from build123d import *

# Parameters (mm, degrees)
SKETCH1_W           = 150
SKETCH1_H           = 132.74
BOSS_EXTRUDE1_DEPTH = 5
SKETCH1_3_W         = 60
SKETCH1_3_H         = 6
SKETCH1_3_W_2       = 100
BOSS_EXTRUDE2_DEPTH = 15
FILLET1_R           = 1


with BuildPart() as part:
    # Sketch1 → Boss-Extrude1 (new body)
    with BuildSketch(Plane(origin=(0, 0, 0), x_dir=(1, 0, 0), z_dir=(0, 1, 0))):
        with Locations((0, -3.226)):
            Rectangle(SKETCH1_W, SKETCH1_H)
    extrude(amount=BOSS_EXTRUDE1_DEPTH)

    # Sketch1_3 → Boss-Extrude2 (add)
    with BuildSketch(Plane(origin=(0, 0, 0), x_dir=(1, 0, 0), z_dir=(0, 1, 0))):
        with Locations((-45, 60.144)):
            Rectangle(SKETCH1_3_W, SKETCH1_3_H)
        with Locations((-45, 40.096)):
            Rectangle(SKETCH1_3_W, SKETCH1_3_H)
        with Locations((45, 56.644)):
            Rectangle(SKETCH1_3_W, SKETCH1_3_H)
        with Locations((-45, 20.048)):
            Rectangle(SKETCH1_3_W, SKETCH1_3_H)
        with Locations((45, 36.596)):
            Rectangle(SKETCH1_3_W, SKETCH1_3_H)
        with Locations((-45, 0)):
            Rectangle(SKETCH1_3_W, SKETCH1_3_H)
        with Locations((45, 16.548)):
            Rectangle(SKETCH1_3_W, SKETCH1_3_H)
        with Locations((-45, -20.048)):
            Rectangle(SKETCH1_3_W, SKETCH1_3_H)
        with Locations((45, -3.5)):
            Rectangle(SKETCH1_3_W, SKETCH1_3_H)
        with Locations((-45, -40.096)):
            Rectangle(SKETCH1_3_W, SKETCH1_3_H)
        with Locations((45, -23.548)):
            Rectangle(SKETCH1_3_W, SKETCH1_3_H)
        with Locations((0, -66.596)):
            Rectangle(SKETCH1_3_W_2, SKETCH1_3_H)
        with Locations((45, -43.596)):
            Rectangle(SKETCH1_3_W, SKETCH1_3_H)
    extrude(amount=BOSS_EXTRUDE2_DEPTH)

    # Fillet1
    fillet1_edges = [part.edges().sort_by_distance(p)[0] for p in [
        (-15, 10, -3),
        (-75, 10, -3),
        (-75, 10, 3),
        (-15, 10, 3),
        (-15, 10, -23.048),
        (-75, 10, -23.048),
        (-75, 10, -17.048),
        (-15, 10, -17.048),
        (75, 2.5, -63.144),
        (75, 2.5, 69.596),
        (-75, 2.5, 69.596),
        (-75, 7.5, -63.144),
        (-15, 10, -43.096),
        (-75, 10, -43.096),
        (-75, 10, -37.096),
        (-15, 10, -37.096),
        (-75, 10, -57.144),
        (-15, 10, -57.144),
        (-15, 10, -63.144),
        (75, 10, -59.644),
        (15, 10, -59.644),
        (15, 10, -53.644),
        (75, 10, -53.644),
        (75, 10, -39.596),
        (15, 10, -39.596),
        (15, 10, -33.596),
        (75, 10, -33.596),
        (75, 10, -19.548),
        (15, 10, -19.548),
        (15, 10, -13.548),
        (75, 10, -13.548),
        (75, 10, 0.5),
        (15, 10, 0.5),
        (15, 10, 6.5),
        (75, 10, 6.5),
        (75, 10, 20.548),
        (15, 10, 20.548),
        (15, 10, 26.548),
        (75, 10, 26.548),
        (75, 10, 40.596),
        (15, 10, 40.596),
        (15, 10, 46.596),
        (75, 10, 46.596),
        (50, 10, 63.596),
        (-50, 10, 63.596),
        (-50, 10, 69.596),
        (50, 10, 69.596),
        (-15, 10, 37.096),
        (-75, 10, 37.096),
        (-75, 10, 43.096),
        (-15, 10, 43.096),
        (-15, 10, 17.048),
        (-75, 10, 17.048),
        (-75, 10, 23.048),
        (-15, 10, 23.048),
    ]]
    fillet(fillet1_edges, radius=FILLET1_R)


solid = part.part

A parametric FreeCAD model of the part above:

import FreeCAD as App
import Part
import Sketcher


def edges_at(feature, points):
    """Names of the edges that pass closest to the given points."""
    edges = feature.Shape.Edges
    near = lambda p: min(range(len(edges)), key=lambda i: edges[i].distToShape(Part.Vertex(*p))[0])
    return sorted({f"Edge{near(p) + 1}" for p in points})

doc = App.newDocument("Part")
params = doc.addObject("Spreadsheet::Sheet", "Params")
for row, (alias, value) in enumerate([
    ("sketch1_width", "150 mm"),
    ("sketch1_height", "132.74 mm"),
    ("pad1_length", "5 mm"),
    ("sketch2_width", "60 mm"),
    ("sketch2_width2", "100 mm"),
    ("sketch2_height", "6 mm"),
    ("pad2_length", "15 mm"),
    ("fillet_radius", "1 mm"),
], start=1):
    params.set(f"A{row}", alias)
    params.set(f"B{row}", "=" + value)
    params.setAlias(f"B{row}", alias)

body = doc.addObject("PartDesign::Body", "Body")

# Sketch on XZ plane
sketch1 = doc.addObject("Sketcher::SketchObject", "Sketch")
body.addObject(sketch1)
sketch1.AttachmentSupport = (doc.XZ_Plane, [""])
sketch1.MapMode = "FlatFace"
sketch1.addGeometry(Part.LineSegment(App.Vector(-75, -63, 0), App.Vector(-75, 70, 0)), False)
sketch1.addGeometry(Part.LineSegment(App.Vector(-75, 70, 0), App.Vector(75, 70, 0)), False)
sketch1.addGeometry(Part.LineSegment(App.Vector(75, 70, 0), App.Vector(75, -63, 0)), False)
sketch1.addGeometry(Part.LineSegment(App.Vector(75, -63, 0), App.Vector(-75, -63, 0)), False)
sketch1.addConstraint(Sketcher.Constraint("Coincident", 0, 2, 1, 1))
sketch1.addConstraint(Sketcher.Constraint("Coincident", 1, 2, 2, 1))
sketch1.addConstraint(Sketcher.Constraint("Coincident", 2, 2, 3, 1))
sketch1.addConstraint(Sketcher.Constraint("Coincident", 3, 2, 0, 1))
sketch1.addConstraint(Sketcher.Constraint("Vertical", 0))
sketch1.addConstraint(Sketcher.Constraint("Horizontal", 1))
sketch1.addConstraint(Sketcher.Constraint("Vertical", 2))
sketch1.addConstraint(Sketcher.Constraint("Horizontal", 3))
sketch1.addConstraint(Sketcher.Constraint("DistanceX", 1, 1, 1, 2, 150.0))
sketch1.addConstraint(Sketcher.Constraint("DistanceX", 0, 2, -1, 1, 75.0))
sketch1.addConstraint(Sketcher.Constraint("DistanceY", 0, 1, 0, 2, 132.74))
sketch1.addConstraint(Sketcher.Constraint("DistanceY", -1, 1, 0, 2, 69.596))
sketch1.setExpression("Constraints[8]", "Params.sketch1_width")
sketch1.setExpression("Constraints[10]", "Params.sketch1_height")
pad1 = doc.addObject("PartDesign::Pad", "Pad")
body.addObject(pad1)
pad1.Profile = sketch1
pad1.setExpression("Length", "Params.pad1_length")
pad1.Reversed = True

# Sketch on XZ plane
sketch2 = doc.addObject("Sketcher::SketchObject", "Sketch001")
body.addObject(sketch2)
sketch2.AttachmentSupport = (doc.XZ_Plane, [""])
sketch2.MapMode = "FlatFace"
sketch2.addGeometry(Part.LineSegment(App.Vector(-75, -63, 0), App.Vector(-75, -57, 0)), False)
sketch2.addGeometry(Part.LineSegment(App.Vector(-75, -57, 0), App.Vector(-15, -57, 0)), False)
sketch2.addGeometry(Part.LineSegment(App.Vector(-15, -57, 0), App.Vector(-15, -63, 0)), False)
sketch2.addGeometry(Part.LineSegment(App.Vector(-15, -63, 0), App.Vector(-75, -63, 0)), False)
sketch2.addGeometry(Part.LineSegment(App.Vector(-75, -43, 0), App.Vector(-75, -37, 0)), False)
sketch2.addGeometry(Part.LineSegment(App.Vector(-75, -37, 0), App.Vector(-15, -37, 0)), False)
sketch2.addGeometry(Part.LineSegment(App.Vector(-15, -37, 0), App.Vector(-15, -43, 0)), False)
sketch2.addGeometry(Part.LineSegment(App.Vector(-15, -43, 0), App.Vector(-75, -43, 0)), False)
sketch2.addGeometry(Part.LineSegment(App.Vector(15, -60, 0), App.Vector(15, -54, 0)), False)
sketch2.addGeometry(Part.LineSegment(App.Vector(15, -54, 0), App.Vector(75, -54, 0)), False)
sketch2.addGeometry(Part.LineSegment(App.Vector(75, -54, 0), App.Vector(75, -60, 0)), False)
sketch2.addGeometry(Part.LineSegment(App.Vector(75, -60, 0), App.Vector(15, -60, 0)), False)
sketch2.addGeometry(Part.LineSegment(App.Vector(-75, -23, 0), App.Vector(-75, -17, 0)), False)
sketch2.addGeometry(Part.LineSegment(App.Vector(-75, -17, 0), App.Vector(-15, -17, 0)), False)
sketch2.addGeometry(Part.LineSegment(App.Vector(-15, -17, 0), App.Vector(-15, -23, 0)), False)
sketch2.addGeometry(Part.LineSegment(App.Vector(-15, -23, 0), App.Vector(-75, -23, 0)), False)
sketch2.addGeometry(Part.LineSegment(App.Vector(15, -40, 0), App.Vector(15, -34, 0)), False)
sketch2.addGeometry(Part.LineSegment(App.Vector(15, -34, 0), App.Vector(75, -34, 0)), False)
sketch2.addGeometry(Part.LineSegment(App.Vector(75, -34, 0), App.Vector(75, -40, 0)), False)
sketch2.addGeometry(Part.LineSegment(App.Vector(75, -40, 0), App.Vector(15, -40, 0)), False)
sketch2.addGeometry(Part.LineSegment(App.Vector(-75, -3, 0), App.Vector(-75, 3, 0)), False)
sketch2.addGeometry(Part.LineSegment(App.Vector(-75, 3, 0), App.Vector(-15, 3, 0)), False)
sketch2.addGeometry(Part.LineSegment(App.Vector(-15, 3, 0), App.Vector(-15, -3, 0)), False)
sketch2.addGeometry(Part.LineSegment(App.Vector(-15, -3, 0), App.Vector(-75, -3, 0)), False)
sketch2.addGeometry(Part.LineSegment(App.Vector(15, -20, 0), App.Vector(15, -14, 0)), False)
sketch2.addGeometry(Part.LineSegment(App.Vector(15, -14, 0), App.Vector(75, -14, 0)), False)
sketch2.addGeometry(Part.LineSegment(App.Vector(75, -14, 0), App.Vector(75, -20, 0)), False)
sketch2.addGeometry(Part.LineSegment(App.Vector(75, -20, 0), App.Vector(15, -20, 0)), False)
sketch2.addGeometry(Part.LineSegment(App.Vector(-75, 17, 0), App.Vector(-75, 23, 0)), False)
sketch2.addGeometry(Part.LineSegment(App.Vector(-75, 23, 0), App.Vector(-15, 23, 0)), False)
sketch2.addGeometry(Part.LineSegment(App.Vector(-15, 23, 0), App.Vector(-15, 17, 0)), False)
sketch2.addGeometry(Part.LineSegment(App.Vector(-15, 17, 0), App.Vector(-75, 17, 0)), False)
sketch2.addGeometry(Part.LineSegment(App.Vector(15, 0, 0), App.Vector(15, 6, 0)), False)
sketch2.addGeometry(Part.LineSegment(App.Vector(15, 6, 0), App.Vector(75, 6, 0)), False)
sketch2.addGeometry(Part.LineSegment(App.Vector(75, 6, 0), App.Vector(75, 0, 0)), False)
sketch2.addGeometry(Part.LineSegment(App.Vector(75, 0, 0), App.Vector(15, 0, 0)), False)
sketch2.addGeometry(Part.LineSegment(App.Vector(-75, 37, 0), App.Vector(-75, 43, 0)), False)
sketch2.addGeometry(Part.LineSegment(App.Vector(-75, 43, 0), App.Vector(-15, 43, 0)), False)
sketch2.addGeometry(Part.LineSegment(App.Vector(-15, 43, 0), App.Vector(-15, 37, 0)), False)
sketch2.addGeometry(Part.LineSegment(App.Vector(-15, 37, 0), App.Vector(-75, 37, 0)), False)
sketch2.addGeometry(Part.LineSegment(App.Vector(15, 21, 0), App.Vector(15, 27, 0)), False)
sketch2.addGeometry(Part.LineSegment(App.Vector(15, 27, 0), App.Vector(75, 27, 0)), False)
sketch2.addGeometry(Part.LineSegment(App.Vector(75, 27, 0), App.Vector(75, 21, 0)), False)
sketch2.addGeometry(Part.LineSegment(App.Vector(75, 21, 0), App.Vector(15, 21, 0)), False)
sketch2.addGeometry(Part.LineSegment(App.Vector(-50, 64, 0), App.Vector(-50, 70, 0)), False)
sketch2.addGeometry(Part.LineSegment(App.Vector(-50, 70, 0), App.Vector(50, 70, 0)), False)
sketch2.addGeometry(Part.LineSegment(App.Vector(50, 70, 0), App.Vector(50, 64, 0)), False)
sketch2.addGeometry(Part.LineSegment(App.Vector(50, 64, 0), App.Vector(-50, 64, 0)), False)
sketch2.addGeometry(Part.LineSegment(App.Vector(15, 41, 0), App.Vector(15, 47, 0)), False)
sketch2.addGeometry(Part.LineSegment(App.Vector(15, 47, 0), App.Vector(75, 47, 0)), False)
sketch2.addGeometry(Part.LineSegment(App.Vector(75, 47, 0), App.Vector(75, 41, 0)), False)
sketch2.addGeometry(Part.LineSegment(App.Vector(75, 41, 0), App.Vector(15, 41, 0)), False)
sketch2.addConstraint(Sketcher.Constraint("Coincident", 0, 2, 1, 1))
sketch2.addConstraint(Sketcher.Constraint("Coincident", 1, 2, 2, 1))
sketch2.addConstraint(Sketcher.Constraint("Coincident", 2, 2, 3, 1))
sketch2.addConstraint(Sketcher.Constraint("Coincident", 3, 2, 0, 1))
sketch2.addConstraint(Sketcher.Constraint("Coincident", 4, 2, 5, 1))
sketch2.addConstraint(Sketcher.Constraint("Coincident", 5, 2, 6, 1))
sketch2.addConstraint(Sketcher.Constraint("Coincident", 6, 2, 7, 1))
sketch2.addConstraint(Sketcher.Constraint("Coincident", 7, 2, 4, 1))
sketch2.addConstraint(Sketcher.Constraint("Coincident", 8, 2, 9, 1))
sketch2.addConstraint(Sketcher.Constraint("Coincident", 9, 2, 10, 1))
sketch2.addConstraint(Sketcher.Constraint("Coincident", 10, 2, 11, 1))
sketch2.addConstraint(Sketcher.Constraint("Coincident", 11, 2, 8, 1))
sketch2.addConstraint(Sketcher.Constraint("Coincident", 12, 2, 13, 1))
sketch2.addConstraint(Sketcher.Constraint("Coincident", 13, 2, 14, 1))
sketch2.addConstraint(Sketcher.Constraint("Coincident", 14, 2, 15, 1))
sketch2.addConstraint(Sketcher.Constraint("Coincident", 15, 2, 12, 1))
sketch2.addConstraint(Sketcher.Constraint("Coincident", 16, 2, 17, 1))
sketch2.addConstraint(Sketcher.Constraint("Coincident", 17, 2, 18, 1))
sketch2.addConstraint(Sketcher.Constraint("Coincident", 18, 2, 19, 1))
sketch2.addConstraint(Sketcher.Constraint("Coincident", 19, 2, 16, 1))
sketch2.addConstraint(Sketcher.Constraint("Coincident", 20, 2, 21, 1))
sketch2.addConstraint(Sketcher.Constraint("Coincident", 21, 2, 22, 1))
sketch2.addConstraint(Sketcher.Constraint("Coincident", 22, 2, 23, 1))
sketch2.addConstraint(Sketcher.Constraint("Coincident", 23, 2, 20, 1))
sketch2.addConstraint(Sketcher.Constraint("Coincident", 24, 2, 25, 1))
sketch2.addConstraint(Sketcher.Constraint("Coincident", 25, 2, 26, 1))
sketch2.addConstraint(Sketcher.Constraint("Coincident", 26, 2, 27, 1))
sketch2.addConstraint(Sketcher.Constraint("Coincident", 27, 2, 24, 1))
sketch2.addConstraint(Sketcher.Constraint("Coincident", 28, 2, 29, 1))
sketch2.addConstraint(Sketcher.Constraint("Coincident", 29, 2, 30, 1))
sketch2.addConstraint(Sketcher.Constraint("Coincident", 30, 2, 31, 1))
sketch2.addConstraint(Sketcher.Constraint("Coincident", 31, 2, 28, 1))
sketch2.addConstraint(Sketcher.Constraint("Coincident", 32, 2, 33, 1))
sketch2.addConstraint(Sketcher.Constraint("Coincident", 33, 2, 34, 1))
sketch2.addConstraint(Sketcher.Constraint("Coincident", 34, 2, 35, 1))
sketch2.addConstraint(Sketcher.Constraint("Coincident", 35, 2, 32, 1))
sketch2.addConstraint(Sketcher.Constraint("Coincident", 36, 2, 37, 1))
sketch2.addConstraint(Sketcher.Constraint("Coincident", 37, 2, 38, 1))
sketch2.addConstraint(Sketcher.Constraint("Coincident", 38, 2, 39, 1))
sketch2.addConstraint(Sketcher.Constraint("Coincident", 39, 2, 36, 1))
sketch2.addConstraint(Sketcher.Constraint("Coincident", 40, 2, 41, 1))
sketch2.addConstraint(Sketcher.Constraint("Coincident", 41, 2, 42, 1))
sketch2.addConstraint(Sketcher.Constraint("Coincident", 42, 2, 43, 1))
sketch2.addConstraint(Sketcher.Constraint("Coincident", 43, 2, 40, 1))
sketch2.addConstraint(Sketcher.Constraint("Coincident", 44, 2, 45, 1))
sketch2.addConstraint(Sketcher.Constraint("Coincident", 45, 2, 46, 1))
sketch2.addConstraint(Sketcher.Constraint("Coincident", 46, 2, 47, 1))
sketch2.addConstraint(Sketcher.Constraint("Coincident", 47, 2, 44, 1))
sketch2.addConstraint(Sketcher.Constraint("Coincident", 48, 2, 49, 1))
sketch2.addConstraint(Sketcher.Constraint("Coincident", 49, 2, 50, 1))
sketch2.addConstraint(Sketcher.Constraint("Coincident", 50, 2, 51, 1))
sketch2.addConstraint(Sketcher.Constraint("Coincident", 51, 2, 48, 1))
sketch2.addConstraint(Sketcher.Constraint("Vertical", 0))
sketch2.addConstraint(Sketcher.Constraint("Horizontal", 1))
sketch2.addConstraint(Sketcher.Constraint("Vertical", 2))
sketch2.addConstraint(Sketcher.Constraint("Horizontal", 3))
sketch2.addConstraint(Sketcher.Constraint("Vertical", 4))
sketch2.addConstraint(Sketcher.Constraint("Horizontal", 5))
sketch2.addConstraint(Sketcher.Constraint("Vertical", 6))
sketch2.addConstraint(Sketcher.Constraint("Horizontal", 7))
sketch2.addConstraint(Sketcher.Constraint("Vertical", 8))
sketch2.addConstraint(Sketcher.Constraint("Horizontal", 9))
sketch2.addConstraint(Sketcher.Constraint("Vertical", 10))
sketch2.addConstraint(Sketcher.Constraint("Horizontal", 11))
sketch2.addConstraint(Sketcher.Constraint("Vertical", 12))
sketch2.addConstraint(Sketcher.Constraint("Horizontal", 13))
sketch2.addConstraint(Sketcher.Constraint("Vertical", 14))
sketch2.addConstraint(Sketcher.Constraint("Horizontal", 15))
sketch2.addConstraint(Sketcher.Constraint("Vertical", 16))
sketch2.addConstraint(Sketcher.Constraint("Horizontal", 17))
sketch2.addConstraint(Sketcher.Constraint("Vertical", 18))
sketch2.addConstraint(Sketcher.Constraint("Horizontal", 19))
sketch2.addConstraint(Sketcher.Constraint("Vertical", 20))
sketch2.addConstraint(Sketcher.Constraint("Horizontal", 21))
sketch2.addConstraint(Sketcher.Constraint("Vertical", 22))
sketch2.addConstraint(Sketcher.Constraint("Horizontal", 23))
sketch2.addConstraint(Sketcher.Constraint("Vertical", 24))
sketch2.addConstraint(Sketcher.Constraint("Horizontal", 25))
sketch2.addConstraint(Sketcher.Constraint("Vertical", 26))
sketch2.addConstraint(Sketcher.Constraint("Horizontal", 27))
sketch2.addConstraint(Sketcher.Constraint("Vertical", 28))
sketch2.addConstraint(Sketcher.Constraint("Horizontal", 29))
sketch2.addConstraint(Sketcher.Constraint("Vertical", 30))
sketch2.addConstraint(Sketcher.Constraint("Horizontal", 31))
sketch2.addConstraint(Sketcher.Constraint("Vertical", 32))
sketch2.addConstraint(Sketcher.Constraint("Horizontal", 33))
sketch2.addConstraint(Sketcher.Constraint("Vertical", 34))
sketch2.addConstraint(Sketcher.Constraint("Horizontal", 35))
sketch2.addConstraint(Sketcher.Constraint("Vertical", 36))
sketch2.addConstraint(Sketcher.Constraint("Horizontal", 37))
sketch2.addConstraint(Sketcher.Constraint("Vertical", 38))
sketch2.addConstraint(Sketcher.Constraint("Horizontal", 39))
sketch2.addConstraint(Sketcher.Constraint("Vertical", 40))
sketch2.addConstraint(Sketcher.Constraint("Horizontal", 41))
sketch2.addConstraint(Sketcher.Constraint("Vertical", 42))
sketch2.addConstraint(Sketcher.Constraint("Horizontal", 43))
sketch2.addConstraint(Sketcher.Constraint("Vertical", 44))
sketch2.addConstraint(Sketcher.Constraint("Horizontal", 45))
sketch2.addConstraint(Sketcher.Constraint("Vertical", 46))
sketch2.addConstraint(Sketcher.Constraint("Horizontal", 47))
sketch2.addConstraint(Sketcher.Constraint("Vertical", 48))
sketch2.addConstraint(Sketcher.Constraint("Horizontal", 49))
sketch2.addConstraint(Sketcher.Constraint("Vertical", 50))
sketch2.addConstraint(Sketcher.Constraint("Horizontal", 51))
sketch2.addConstraint(Sketcher.Constraint("Symmetric", 15, 2, 28, 2, -1))
sketch2.addConstraint(Sketcher.Constraint("Symmetric", 13, 2, 30, 2, -1))
sketch2.addConstraint(Sketcher.Constraint("Symmetric", 7, 2, 36, 2, -1))
sketch2.addConstraint(Sketcher.Constraint("Symmetric", 5, 2, 38, 2, -1))
sketch2.addConstraint(Sketcher.Constraint("Vertical", 3, 2, 4, 2))
sketch2.addConstraint(Sketcher.Constraint("Vertical", 2, 2, 5, 2))
sketch2.addConstraint(Sketcher.Constraint("Vertical", 7, 2, 12, 2))
sketch2.addConstraint(Sketcher.Constraint("Vertical", 6, 2, 13, 2))
sketch2.addConstraint(Sketcher.Constraint("Vertical", 11, 2, 16, 2))
sketch2.addConstraint(Sketcher.Constraint("Vertical", 10, 2, 17, 2))
sketch2.addConstraint(Sketcher.Constraint("Vertical", 15, 2, 20, 2))
sketch2.addConstraint(Sketcher.Constraint("Vertical", 14, 2, 21, 2))
sketch2.addConstraint(Sketcher.Constraint("Vertical", 19, 2, 24, 2))
sketch2.addConstraint(Sketcher.Constraint("Vertical", 18, 2, 25, 2))
sketch2.addConstraint(Sketcher.Constraint("Vertical", 27, 2, 32, 2))
sketch2.addConstraint(Sketcher.Constraint("Vertical", 26, 2, 33, 2))
sketch2.addConstraint(Sketcher.Constraint("Vertical", 35, 2, 40, 2))
sketch2.addConstraint(Sketcher.Constraint("Vertical", 34, 2, 41, 2))
sketch2.addConstraint(Sketcher.Constraint("Vertical", 43, 2, 48, 2))
sketch2.addConstraint(Sketcher.Constraint("Vertical", 42, 2, 49, 2))
sketch2.addConstraint(Sketcher.Constraint("Equal", 7, 9))
sketch2.addConstraint(Sketcher.Constraint("Equal", 2, 4))
sketch2.addConstraint(Sketcher.Constraint("Equal", 6, 8))
sketch2.addConstraint(Sketcher.Constraint("Equal", 10, 12))
sketch2.addConstraint(Sketcher.Constraint("Equal", 14, 16))
sketch2.addConstraint(Sketcher.Constraint("Equal", 18, 20))
sketch2.addConstraint(Sketcher.Constraint("Equal", 22, 24))
sketch2.addConstraint(Sketcher.Constraint("Equal", 30, 32))
sketch2.addConstraint(Sketcher.Constraint("Equal", 38, 40))
sketch2.addConstraint(Sketcher.Constraint("Equal", 42, 44))
sketch2.addConstraint(Sketcher.Constraint("Equal", 46, 48))
sketch2.addConstraint(Sketcher.Constraint("DistanceX", 1, 1, 1, 2, 60.0))
sketch2.addConstraint(Sketcher.Constraint("DistanceX", 45, 1, 45, 2, 100.0))
sketch2.addConstraint(Sketcher.Constraint("DistanceY", 0, 1, 0, 2, 6.0))
sketch2.addConstraint(Sketcher.Constraint("DistanceX", 0, 2, -1, 1, 75.0))
sketch2.addConstraint(Sketcher.Constraint("DistanceX", -1, 1, 8, 2, 15.0))
sketch2.addConstraint(Sketcher.Constraint("DistanceY", -1, 1, 20, 2, 3.0))
sketch2.addConstraint(Sketcher.Constraint("DistanceX", 44, 2, -1, 1, 50.0))
sketch2.addConstraint(Sketcher.Constraint("DistanceY", 49, 2, 46, 2, 17.0))
sketch2.addConstraint(Sketcher.Constraint("DistanceY", -1, 1, 32, 2, 6.5))
sketch2.addConstraint(Sketcher.Constraint("DistanceY", 1, 2, 8, 2, 3.5))
sketch2.addConstraint(Sketcher.Constraint("DistanceY", 5, 2, 16, 2, 3.5))
sketch2.addConstraint(Sketcher.Constraint("DistanceY", 13, 2, 24, 2, 3.5))
sketch2.addConstraint(Sketcher.Constraint("DistanceY", 29, 2, 40, 2, 3.5))
sketch2.addConstraint(Sketcher.Constraint("DistanceY", 36, 2, 44, 2, 26.5))
sketch2.addConstraint(Sketcher.Constraint("DistanceY", 0, 2, -1, 1, 57.144))
sketch2.addConstraint(Sketcher.Constraint("DistanceY", 4, 2, -1, 1, 37.096))
sketch2.addConstraint(Sketcher.Constraint("DistanceY", 12, 2, -1, 1, 17.048))
sketch2.setExpression("Constraints[135]", "Params.sketch2_width")
sketch2.setExpression("Constraints[136]", "Params.sketch2_width2")
sketch2.setExpression("Constraints[137]", "Params.sketch2_height")
pad2 = doc.addObject("PartDesign::Pad", "Pad001")
body.addObject(pad2)
pad2.Profile = sketch2
pad2.setExpression("Length", "Params.pad2_length")
pad2.Reversed = True
doc.recompute()

fillet = doc.addObject("PartDesign::Fillet", "Fillet")
body.addObject(fillet)
fillet.Base = (pad2, edges_at(pad2, [
    (-15, 10, -3),
    (-75, 10, -3),
    (-75, 10, 3),
    (-15, 10, 3),
    (-15, 10, -23.048),
    (-75, 10, -23.048),
    (-75, 10, -17.048),
    (-15, 10, -17.048),
    (75, 2.5, -63.144),
    (75, 2.5, 69.596),
    (-75, 2.5, 69.596),
    (-75, 7.5, -63.144),
    (-15, 10, -43.096),
    (-75, 10, -43.096),
    (-75, 10, -37.096),
    (-15, 10, -37.096),
    (-75, 10, -57.144),
    (-15, 10, -57.144),
    (-15, 10, -63.144),
    (75, 10, -59.644),
    (15, 10, -59.644),
    (15, 10, -53.644),
    (75, 10, -53.644),
    (75, 10, -39.596),
    (15, 10, -39.596),
    (15, 10, -33.596),
    (75, 10, -33.596),
    (75, 10, -19.548),
    (15, 10, -19.548),
    (15, 10, -13.548),
    (75, 10, -13.548),
    (75, 10, 0.5),
    (15, 10, 0.5),
    (15, 10, 6.5),
    (75, 10, 6.5),
    (75, 10, 20.548),
    (15, 10, 20.548),
    (15, 10, 26.548),
    (75, 10, 26.548),
    (75, 10, 40.596),
    (15, 10, 40.596),
    (15, 10, 46.596),
    (75, 10, 46.596),
    (50, 10, 63.596),
    (-50, 10, 63.596),
    (-50, 10, 69.596),
    (50, 10, 69.596),
    (-15, 10, 37.096),
    (-75, 10, 37.096),
    (-75, 10, 43.096),
    (-15, 10, 43.096),
    (-15, 10, 17.048),
    (-75, 10, 17.048),
    (-75, 10, 23.048),
    (-15, 10, 23.048),
]))
fillet.setExpression("Radius", "Params.fillet_radius")

doc.recompute()
